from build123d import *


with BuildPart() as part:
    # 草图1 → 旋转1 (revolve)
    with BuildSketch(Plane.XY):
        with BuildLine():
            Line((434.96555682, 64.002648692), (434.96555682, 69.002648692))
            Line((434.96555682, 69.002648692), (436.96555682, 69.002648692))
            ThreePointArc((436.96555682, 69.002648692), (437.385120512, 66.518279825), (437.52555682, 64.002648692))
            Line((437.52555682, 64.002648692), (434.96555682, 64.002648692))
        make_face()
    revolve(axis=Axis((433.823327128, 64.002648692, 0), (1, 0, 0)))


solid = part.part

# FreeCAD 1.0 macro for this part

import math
import FreeCAD as App
import Part
import Sketcher

V = App.Vector

doc = App.newDocument("Part")
body = doc.addObject("PartDesign::Body", "Body")

# Sketch on XY plane
sketch1 = body.newObject("Sketcher::SketchObject", "Sketch")
sketch1.AttachmentSupport = (doc.getObject("XY_Plane"), [""])
sketch1.MapMode = "FlatFace"
sketch1.addGeometry([
    Part.LineSegment(V(434.965557, 69.002649, 0), V(434.965557, 64.002649, 0)),
    Part.LineSegment(V(434.965557, 64.002649, 0), V(437.525557, 64.002649, 0)),
    Part.ArcOfCircle(Part.Circle(V(414.924128, 64.002649, 0), V(0, 0, 1), 22.601429), math.radians(0), math.radians(12.780991)),
    Part.LineSegment(V(436.965557, 69.002649, 0), V(434.965557, 69.002649, 0)),
], False)
sketch1.addGeometry(Part.LineSegment(V(414.924128, 64.002649, 0), V(437.525557, 64.002649, 0)), True)  # axis
sketch1.addConstraint([
    Sketcher.Constraint("Coincident", 0, 2, 1, 1),
    Sketcher.Constraint("Coincident", 1, 2, 2, 1),
    Sketcher.Constraint("Coincident", 2, 2, 3, 1),
    Sketcher.Constraint("Coincident", 3, 2, 0, 1),
    Sketcher.Constraint("Vertical", 0),
    Sketcher.Constraint("Horizontal", 1),
    Sketcher.Constraint("Horizontal", 3),
    Sketcher.Constraint("Horizontal", 4),
    Sketcher.Constraint("Coincident", 4, 1, 2, 3),
    Sketcher.Constraint("Coincident", 4, 2, 1, 2),
    Sketcher.Constraint("DistanceX", 3, 2, 3, 1, 2.0),
    Sketcher.Constraint("DistanceY", 0, 2, 0, 1, 5.0),
    Sketcher.Constraint("DistanceX", 1, 1, 1, 2, 2.56),
    Sketcher.Constraint("DistanceX", -1, 1, 2, 3, 414.924128),
    Sketcher.Constraint("DistanceY", -1, 1, 2, 3, 64.002649),
])
revolution = body.newObject("PartDesign::Revolution", "Revolution")
revolution.Profile = sketch1
revolution.ReferenceAxis = (sketch1, ["Axis0"])
revolution.Angle = 360

doc.recompute()
